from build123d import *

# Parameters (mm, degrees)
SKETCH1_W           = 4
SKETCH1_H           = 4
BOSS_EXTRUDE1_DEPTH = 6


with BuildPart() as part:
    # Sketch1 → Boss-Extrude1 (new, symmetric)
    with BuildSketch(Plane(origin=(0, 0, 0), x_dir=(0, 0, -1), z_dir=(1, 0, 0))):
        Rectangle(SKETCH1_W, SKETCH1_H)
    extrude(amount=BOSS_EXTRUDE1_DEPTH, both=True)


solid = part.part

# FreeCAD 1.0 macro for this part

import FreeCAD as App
import Part
import Sketcher


def add_polygon(sketch, points):
    """Adds a closed chain of lines whose ends are joined by coincident constraints."""
    first, n = sketch.GeometryCount, len(points)
    for a, b in zip(points, points[1:] + points[:1]):
        sketch.addGeometry(Part.LineSegment(App.Vector(*a, 0), App.Vector(*b, 0)), False)
    for i in range(n):
        sketch.addConstraint(Sketcher.Constraint("Coincident", first + i, 2, first + (i + 1) % n, 1))

doc = App.newDocument("Part")
body = doc.addObject("PartDesign::Body", "Body")

# Sketch on YZ plane
sketch1 = body.newObject("Sketcher::SketchObject", "Sketch")
sketch1.AttachmentSupport = (doc.getObject("YZ_Plane"), [""])
sketch1.MapMode = "FlatFace"
add_polygon(sketch1, [(2, 2), (-2, 2), (-2, -2), (2, -2)])  # lines 0-3
sketch1.addConstraint([
    Sketcher.Constraint("Horizontal", 0),
    Sketcher.Constraint("Vertical", 1),
    Sketcher.Constraint("Horizontal", 2),
    Sketcher.Constraint("Vertical", 3),
    Sketcher.Constraint("Symmetric", 0, 2, 2, 2, -1, 1),
    Sketcher.Constraint("Equal", 2, 1),
    Sketcher.Constraint("DistanceX", 0, 2, 0, 1, 4.0),
])
pad1 = body.newObject("PartDesign::Pad", "Pad")
pad1.Profile = sketch1
pad1.Length = 12
pad1.Midplane = True

doc.recompute()
